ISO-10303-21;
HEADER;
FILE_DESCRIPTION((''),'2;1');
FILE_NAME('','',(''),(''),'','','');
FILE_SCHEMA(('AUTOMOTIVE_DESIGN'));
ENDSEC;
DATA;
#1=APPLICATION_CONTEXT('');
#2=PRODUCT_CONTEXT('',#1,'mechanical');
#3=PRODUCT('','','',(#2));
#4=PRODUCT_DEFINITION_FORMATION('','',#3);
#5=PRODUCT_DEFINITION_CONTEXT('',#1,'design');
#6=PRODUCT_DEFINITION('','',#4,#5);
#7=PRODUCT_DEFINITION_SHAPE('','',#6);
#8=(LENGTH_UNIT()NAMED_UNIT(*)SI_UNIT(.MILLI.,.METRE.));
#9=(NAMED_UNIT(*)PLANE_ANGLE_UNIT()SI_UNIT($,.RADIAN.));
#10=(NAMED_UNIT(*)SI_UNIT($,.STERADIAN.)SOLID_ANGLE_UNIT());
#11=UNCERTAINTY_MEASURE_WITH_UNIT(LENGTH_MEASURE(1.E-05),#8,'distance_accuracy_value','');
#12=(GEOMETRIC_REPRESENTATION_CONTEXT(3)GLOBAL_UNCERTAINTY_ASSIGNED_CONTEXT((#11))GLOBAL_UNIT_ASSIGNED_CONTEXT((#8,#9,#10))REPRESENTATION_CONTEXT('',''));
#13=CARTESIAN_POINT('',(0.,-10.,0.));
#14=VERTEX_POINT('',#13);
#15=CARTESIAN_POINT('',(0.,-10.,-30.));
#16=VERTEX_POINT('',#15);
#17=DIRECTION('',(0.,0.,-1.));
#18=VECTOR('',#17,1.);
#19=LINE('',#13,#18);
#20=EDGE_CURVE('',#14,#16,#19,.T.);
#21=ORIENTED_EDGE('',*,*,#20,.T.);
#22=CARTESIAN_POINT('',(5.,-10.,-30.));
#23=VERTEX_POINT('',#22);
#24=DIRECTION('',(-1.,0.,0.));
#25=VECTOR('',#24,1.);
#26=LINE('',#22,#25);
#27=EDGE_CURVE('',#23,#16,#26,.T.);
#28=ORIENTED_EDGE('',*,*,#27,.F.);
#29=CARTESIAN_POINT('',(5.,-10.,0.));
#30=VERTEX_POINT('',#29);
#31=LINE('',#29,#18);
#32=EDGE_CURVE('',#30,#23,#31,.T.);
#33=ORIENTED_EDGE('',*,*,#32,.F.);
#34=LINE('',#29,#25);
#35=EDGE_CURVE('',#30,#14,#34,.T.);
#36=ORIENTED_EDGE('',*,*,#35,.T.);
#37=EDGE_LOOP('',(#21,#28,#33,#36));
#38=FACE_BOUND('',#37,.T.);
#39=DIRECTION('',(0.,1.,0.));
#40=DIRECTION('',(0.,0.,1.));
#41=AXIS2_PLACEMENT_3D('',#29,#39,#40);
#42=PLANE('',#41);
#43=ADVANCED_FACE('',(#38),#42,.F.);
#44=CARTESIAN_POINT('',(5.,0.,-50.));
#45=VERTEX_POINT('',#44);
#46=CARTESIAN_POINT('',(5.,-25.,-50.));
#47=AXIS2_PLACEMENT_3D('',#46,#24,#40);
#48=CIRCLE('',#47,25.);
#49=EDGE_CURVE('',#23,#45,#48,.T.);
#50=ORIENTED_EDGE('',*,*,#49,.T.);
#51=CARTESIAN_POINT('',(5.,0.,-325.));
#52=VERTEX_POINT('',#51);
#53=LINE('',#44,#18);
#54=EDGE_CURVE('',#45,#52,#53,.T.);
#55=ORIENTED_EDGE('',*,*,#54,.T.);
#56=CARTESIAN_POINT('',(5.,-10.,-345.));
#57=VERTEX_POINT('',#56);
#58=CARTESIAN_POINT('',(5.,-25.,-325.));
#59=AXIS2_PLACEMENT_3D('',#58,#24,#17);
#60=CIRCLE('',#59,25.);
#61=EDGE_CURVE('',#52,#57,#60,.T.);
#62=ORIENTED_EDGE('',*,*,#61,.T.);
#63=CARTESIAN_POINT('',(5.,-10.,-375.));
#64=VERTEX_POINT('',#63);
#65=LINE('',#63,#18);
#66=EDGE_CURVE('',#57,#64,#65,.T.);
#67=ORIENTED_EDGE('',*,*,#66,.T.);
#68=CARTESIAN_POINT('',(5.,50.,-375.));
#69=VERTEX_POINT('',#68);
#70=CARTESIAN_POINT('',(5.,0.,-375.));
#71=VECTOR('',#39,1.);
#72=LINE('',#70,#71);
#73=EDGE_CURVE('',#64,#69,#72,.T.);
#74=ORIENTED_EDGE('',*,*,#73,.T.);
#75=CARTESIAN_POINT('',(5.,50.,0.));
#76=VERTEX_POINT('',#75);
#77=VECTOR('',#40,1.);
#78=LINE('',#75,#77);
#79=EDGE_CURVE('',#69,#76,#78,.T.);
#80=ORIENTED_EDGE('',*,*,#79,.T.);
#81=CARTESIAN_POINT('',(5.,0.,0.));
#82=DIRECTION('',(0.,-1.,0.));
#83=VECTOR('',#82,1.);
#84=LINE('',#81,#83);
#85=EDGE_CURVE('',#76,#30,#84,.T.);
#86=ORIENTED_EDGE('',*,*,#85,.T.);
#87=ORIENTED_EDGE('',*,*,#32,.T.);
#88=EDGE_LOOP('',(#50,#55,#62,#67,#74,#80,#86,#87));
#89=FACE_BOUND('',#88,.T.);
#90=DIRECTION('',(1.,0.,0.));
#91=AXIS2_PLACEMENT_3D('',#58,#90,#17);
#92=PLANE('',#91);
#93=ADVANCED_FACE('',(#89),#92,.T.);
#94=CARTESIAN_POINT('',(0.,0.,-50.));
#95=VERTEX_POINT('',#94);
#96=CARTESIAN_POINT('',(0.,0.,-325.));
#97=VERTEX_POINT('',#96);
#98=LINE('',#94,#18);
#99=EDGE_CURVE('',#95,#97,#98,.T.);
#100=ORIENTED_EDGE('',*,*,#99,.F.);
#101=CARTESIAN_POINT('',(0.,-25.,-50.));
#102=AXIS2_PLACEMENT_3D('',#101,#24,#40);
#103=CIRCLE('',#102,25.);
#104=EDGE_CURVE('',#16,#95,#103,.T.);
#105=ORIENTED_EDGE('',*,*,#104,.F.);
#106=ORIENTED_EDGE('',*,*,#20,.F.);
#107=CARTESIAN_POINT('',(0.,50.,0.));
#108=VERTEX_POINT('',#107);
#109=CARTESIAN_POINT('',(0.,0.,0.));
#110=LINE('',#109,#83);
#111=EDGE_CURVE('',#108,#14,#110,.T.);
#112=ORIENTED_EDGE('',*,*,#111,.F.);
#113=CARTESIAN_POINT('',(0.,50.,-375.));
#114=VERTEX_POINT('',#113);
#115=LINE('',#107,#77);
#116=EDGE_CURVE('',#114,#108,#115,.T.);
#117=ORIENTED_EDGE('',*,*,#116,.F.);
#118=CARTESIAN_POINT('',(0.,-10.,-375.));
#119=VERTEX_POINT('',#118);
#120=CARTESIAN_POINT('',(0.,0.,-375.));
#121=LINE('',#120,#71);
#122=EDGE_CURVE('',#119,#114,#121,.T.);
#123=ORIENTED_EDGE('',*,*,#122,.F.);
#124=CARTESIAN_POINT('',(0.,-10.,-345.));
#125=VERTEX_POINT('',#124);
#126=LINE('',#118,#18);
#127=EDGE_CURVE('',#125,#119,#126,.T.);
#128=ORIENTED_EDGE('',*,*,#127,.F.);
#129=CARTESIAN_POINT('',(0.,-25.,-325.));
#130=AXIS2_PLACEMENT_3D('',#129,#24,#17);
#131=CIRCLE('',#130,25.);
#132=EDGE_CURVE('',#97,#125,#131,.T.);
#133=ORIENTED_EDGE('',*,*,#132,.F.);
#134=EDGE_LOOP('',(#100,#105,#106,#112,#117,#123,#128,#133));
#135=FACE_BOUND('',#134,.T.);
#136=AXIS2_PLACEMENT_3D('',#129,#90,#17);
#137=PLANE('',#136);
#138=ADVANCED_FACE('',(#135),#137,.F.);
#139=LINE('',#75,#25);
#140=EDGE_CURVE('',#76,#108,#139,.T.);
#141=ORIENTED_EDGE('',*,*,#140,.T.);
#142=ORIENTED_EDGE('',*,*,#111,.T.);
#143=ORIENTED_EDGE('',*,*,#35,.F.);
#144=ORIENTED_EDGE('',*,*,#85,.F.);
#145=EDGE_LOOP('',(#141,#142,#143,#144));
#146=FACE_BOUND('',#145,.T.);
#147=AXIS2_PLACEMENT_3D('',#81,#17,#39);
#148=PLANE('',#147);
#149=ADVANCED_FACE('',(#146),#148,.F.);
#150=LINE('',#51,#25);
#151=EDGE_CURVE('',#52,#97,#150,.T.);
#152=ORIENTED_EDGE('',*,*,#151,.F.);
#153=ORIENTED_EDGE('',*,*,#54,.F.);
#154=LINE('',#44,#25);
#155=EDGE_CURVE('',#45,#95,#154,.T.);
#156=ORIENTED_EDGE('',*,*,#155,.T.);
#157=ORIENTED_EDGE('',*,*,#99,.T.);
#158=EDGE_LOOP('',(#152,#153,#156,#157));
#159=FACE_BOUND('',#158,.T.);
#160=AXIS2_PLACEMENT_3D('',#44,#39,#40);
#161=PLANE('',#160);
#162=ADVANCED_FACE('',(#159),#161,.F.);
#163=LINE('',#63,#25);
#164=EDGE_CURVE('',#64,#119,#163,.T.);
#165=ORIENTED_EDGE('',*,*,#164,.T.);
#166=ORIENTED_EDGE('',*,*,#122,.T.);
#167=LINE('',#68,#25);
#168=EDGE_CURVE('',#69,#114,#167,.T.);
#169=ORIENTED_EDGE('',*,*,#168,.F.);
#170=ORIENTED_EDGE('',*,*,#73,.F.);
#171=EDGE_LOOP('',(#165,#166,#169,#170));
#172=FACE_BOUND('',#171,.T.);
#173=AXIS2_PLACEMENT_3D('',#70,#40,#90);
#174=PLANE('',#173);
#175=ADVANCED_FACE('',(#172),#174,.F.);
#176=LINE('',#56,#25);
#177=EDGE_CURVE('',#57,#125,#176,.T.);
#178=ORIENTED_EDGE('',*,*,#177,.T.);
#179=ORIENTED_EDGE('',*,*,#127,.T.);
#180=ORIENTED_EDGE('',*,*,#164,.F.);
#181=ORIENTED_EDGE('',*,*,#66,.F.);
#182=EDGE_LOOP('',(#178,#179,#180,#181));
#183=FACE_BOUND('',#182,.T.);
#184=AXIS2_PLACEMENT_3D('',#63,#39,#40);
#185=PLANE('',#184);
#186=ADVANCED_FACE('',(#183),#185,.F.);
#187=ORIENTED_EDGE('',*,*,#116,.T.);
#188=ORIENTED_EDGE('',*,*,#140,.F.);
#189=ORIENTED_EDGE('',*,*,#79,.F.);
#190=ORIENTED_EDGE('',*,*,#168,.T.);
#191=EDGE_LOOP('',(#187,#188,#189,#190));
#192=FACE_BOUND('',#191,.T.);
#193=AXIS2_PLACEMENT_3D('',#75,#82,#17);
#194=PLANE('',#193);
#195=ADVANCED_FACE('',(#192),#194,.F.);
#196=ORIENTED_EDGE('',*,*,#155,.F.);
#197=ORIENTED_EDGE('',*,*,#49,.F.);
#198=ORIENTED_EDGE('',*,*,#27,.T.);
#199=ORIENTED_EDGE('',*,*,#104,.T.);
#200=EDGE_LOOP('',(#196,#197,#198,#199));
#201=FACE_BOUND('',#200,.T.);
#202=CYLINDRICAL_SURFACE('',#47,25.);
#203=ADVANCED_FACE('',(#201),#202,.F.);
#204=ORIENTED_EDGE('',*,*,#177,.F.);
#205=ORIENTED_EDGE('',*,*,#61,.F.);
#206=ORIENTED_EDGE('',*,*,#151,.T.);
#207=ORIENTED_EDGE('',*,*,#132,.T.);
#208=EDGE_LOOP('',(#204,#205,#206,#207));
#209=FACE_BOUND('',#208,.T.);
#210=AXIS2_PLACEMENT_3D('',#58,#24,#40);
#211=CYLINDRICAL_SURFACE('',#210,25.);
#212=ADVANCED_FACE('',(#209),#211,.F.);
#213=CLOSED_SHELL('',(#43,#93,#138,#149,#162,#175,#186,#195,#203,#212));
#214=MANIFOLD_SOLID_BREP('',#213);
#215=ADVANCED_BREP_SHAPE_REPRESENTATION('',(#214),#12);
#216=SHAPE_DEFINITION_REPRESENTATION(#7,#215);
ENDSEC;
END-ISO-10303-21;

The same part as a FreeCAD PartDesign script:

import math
import FreeCAD as App
import Part
import Sketcher
from FreeCAD import Vector
Q = App.Units.Quantity

doc = App.newDocument("Part")
params = doc.addObject("Spreadsheet::Sheet", "Params")
for row, (alias, value) in enumerate([
    ("sketch1_radius", "25 mm"),
    ("sketch1_width", "60 mm"),
    ("sketch1_height", "30 mm"),
    ("sketch1_height2", "275 mm"),
    ("sketch1_height3", "375 mm"),
    ("pad1_length", "5 mm"),
], start=1):
    params.set(f"A{row}", alias)
    params.set(f"B{row}", "=" + value)
    params.setAlias(f"B{row}", alias)

body = doc.addObject("PartDesign::Body", "Body")

# Sketch on YZ plane
sketch1 = body.newObject("Sketcher::SketchObject", "Sketch")
sketch1.AttachmentSupport = (doc.getObject("YZ_Plane"), [""])
sketch1.MapMode = "FlatFace"
sketch1.addGeometry(Part.LineSegment(Vector(-10, 0, 0), Vector(-10, -30, 0)), False)
sketch1.addGeometry(Part.ArcOfCircle(Part.Circle(Vector(-25, -50, 0), Vector(0, 0, 1), 25), math.radians(0), math.radians(53)), False)
sketch1.addGeometry(Part.LineSegment(Vector(0, -50, 0), Vector(0, -325, 0)), False)
sketch1.addGeometry(Part.ArcOfCircle(Part.Circle(Vector(-25, -325, 0), Vector(0, 0, 1), 25), math.radians(-53), math.radians(0)), False)
sketch1.addGeometry(Part.LineSegment(Vector(-10, -345, 0), Vector(-10, -375, 0)), False)
sketch1.addGeometry(Part.LineSegment(Vector(-10, -375, 0), Vector(50, -375, 0)), False)
sketch1.addGeometry(Part.LineSegment(Vector(50, -375, 0), Vector(50, 0, 0)), False)
sketch1.addGeometry(Part.LineSegment(Vector(50, 0, 0), Vector(-10, 0, 0)), False)
sketch1.addConstraint(Sketcher.Constraint("Coincident", 0, 2, 1, 2))
sketch1.addConstraint(Sketcher.Constraint("Tangent", 1, 1, 2, 1))
sketch1.addConstraint(Sketcher.Constraint("Tangent", 2, 2, 3, 2))
sketch1.addConstraint(Sketcher.Constraint("Coincident", 3, 1, 4, 1))
sketch1.addConstraint(Sketcher.Constraint("Coincident", 4, 2, 5, 1))
sketch1.addConstraint(Sketcher.Constraint("Coincident", 5, 2, 6, 1))
sketch1.addConstraint(Sketcher.Constraint("Coincident", 6, 2, 7, 1))
sketch1.addConstraint(Sketcher.Constraint("Coincident", 7, 2, 0, 1))
sketch1.addConstraint(Sketcher.Constraint("Vertical", 0))
sketch1.addConstraint(Sketcher.Constraint("Vertical", 2))
sketch1.addConstraint(Sketcher.Constraint("Vertical", 4))
sketch1.addConstraint(Sketcher.Constraint("Horizontal", 5))
sketch1.addConstraint(Sketcher.Constraint("Vertical", 6))
sketch1.addConstraint(Sketcher.Constraint("Horizontal", 7))
sketch1.addConstraint(Sketcher.Constraint("Equal", 1, 3))
sketch1.addConstraint(Sketcher.Constraint("PointOnObject", 1, 1, -2))
sketch1.addConstraint(Sketcher.Constraint("PointOnObject", 6, 2, -1))
sketch1.addConstraint(Sketcher.Constraint("Vertical", 0, 2, 3, 1))
sketch1.addConstraint(Sketcher.Constraint("Equal", 0, 4))
sketch1.addConstraint(Sketcher.Constraint("Radius", 1, Q("25 mm")))
sketch1.addConstraint(Sketcher.Constraint("DistanceX", 5, 1, 5, 2, Q("60 mm")))
sketch1.addConstraint(Sketcher.Constraint("DistanceY", 0, 2, 0, 1, Q("30 mm")))
sketch1.addConstraint(Sketcher.Constraint("DistanceY", 2, 2, 2, 1, Q("275 mm")))
sketch1.addConstraint(Sketcher.Constraint("DistanceY", 6, 1, 6, 2, Q("375 mm")))
sketch1.setExpression("Constraints[19]", "Params.sketch1_radius")
sketch1.setExpression("Constraints[20]", "Params.sketch1_width")
sketch1.setExpression("Constraints[21]", "Params.sketch1_height")
sketch1.setExpression("Constraints[22]", "Params.sketch1_height2")
sketch1.setExpression("Constraints[23]", "Params.sketch1_height3")
pad1 = body.newObject("PartDesign::Pad", "Pad")
pad1.Profile = sketch1
pad1.setExpression("Length", "Params.pad1_length")

doc.recompute()
